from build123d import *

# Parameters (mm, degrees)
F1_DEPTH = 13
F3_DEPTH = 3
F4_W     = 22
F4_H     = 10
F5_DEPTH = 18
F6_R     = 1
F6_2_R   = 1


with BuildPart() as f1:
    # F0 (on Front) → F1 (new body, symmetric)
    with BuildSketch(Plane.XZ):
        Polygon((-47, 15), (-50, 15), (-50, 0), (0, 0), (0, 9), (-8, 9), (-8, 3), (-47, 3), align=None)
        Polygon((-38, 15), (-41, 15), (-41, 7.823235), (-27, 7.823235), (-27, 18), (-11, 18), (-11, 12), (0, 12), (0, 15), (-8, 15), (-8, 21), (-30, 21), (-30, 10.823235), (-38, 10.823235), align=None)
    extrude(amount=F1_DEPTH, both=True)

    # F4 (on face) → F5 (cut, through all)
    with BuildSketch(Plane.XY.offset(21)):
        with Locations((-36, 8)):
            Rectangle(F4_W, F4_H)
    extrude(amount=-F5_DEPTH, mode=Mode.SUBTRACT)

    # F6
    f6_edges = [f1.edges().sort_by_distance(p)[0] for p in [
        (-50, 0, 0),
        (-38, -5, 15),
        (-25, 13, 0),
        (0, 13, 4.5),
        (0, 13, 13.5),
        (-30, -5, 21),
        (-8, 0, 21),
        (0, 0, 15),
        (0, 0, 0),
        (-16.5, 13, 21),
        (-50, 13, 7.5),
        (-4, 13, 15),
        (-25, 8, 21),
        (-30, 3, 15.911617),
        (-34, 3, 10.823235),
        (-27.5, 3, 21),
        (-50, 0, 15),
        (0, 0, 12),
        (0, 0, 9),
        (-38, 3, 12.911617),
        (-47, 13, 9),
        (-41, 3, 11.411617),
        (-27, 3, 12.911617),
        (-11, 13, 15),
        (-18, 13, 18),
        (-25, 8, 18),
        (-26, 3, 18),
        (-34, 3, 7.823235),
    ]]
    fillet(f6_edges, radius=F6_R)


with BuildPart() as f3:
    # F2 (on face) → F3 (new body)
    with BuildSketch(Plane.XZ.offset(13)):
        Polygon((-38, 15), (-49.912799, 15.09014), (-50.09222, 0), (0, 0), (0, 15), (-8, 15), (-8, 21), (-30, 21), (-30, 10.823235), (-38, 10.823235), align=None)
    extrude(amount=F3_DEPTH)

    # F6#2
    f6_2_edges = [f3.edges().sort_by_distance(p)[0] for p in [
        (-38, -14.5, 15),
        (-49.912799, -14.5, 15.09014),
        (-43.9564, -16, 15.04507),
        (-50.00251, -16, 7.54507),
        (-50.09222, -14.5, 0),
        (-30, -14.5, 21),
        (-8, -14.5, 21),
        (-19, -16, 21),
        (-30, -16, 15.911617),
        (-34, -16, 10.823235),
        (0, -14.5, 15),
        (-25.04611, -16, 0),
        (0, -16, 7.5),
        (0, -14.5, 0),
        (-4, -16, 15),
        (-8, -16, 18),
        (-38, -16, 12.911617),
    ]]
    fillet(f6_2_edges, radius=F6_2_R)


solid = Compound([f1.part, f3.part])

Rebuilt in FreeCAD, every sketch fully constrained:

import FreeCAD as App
import Part
import Sketcher
from FreeCAD import Vector


def edges_at(feature, points):
    """Names of the edges that pass closest to the given points."""
    edges = feature.Shape.Edges
    near = lambda p: min(range(len(edges)), key=lambda i: edges[i].distToShape(Part.Vertex(*p))[0])
    return sorted({f"Edge{near(p) + 1}" for p in points})


def add_polygon(sketch, points):
    """Adds a closed chain of lines whose ends are joined by coincident constraints."""
    first, n = sketch.GeometryCount, len(points)
    for a, b in zip(points, points[1:] + points[:1]):
        sketch.addGeometry(Part.LineSegment(App.Vector(*a, 0), App.Vector(*b, 0)), False)
    for i in range(n):
        sketch.addConstraint(Sketcher.Constraint("Coincident", first + i, 2, first + (i + 1) % n, 1))

doc = App.newDocument("Part")
body = doc.addObject("PartDesign::Body", "Body")
body.AllowCompound = True

sketch1 = body.newObject("Sketcher::SketchObject", "Sketch")
sketch1.AttachmentSupport = (doc.getObject("XZ_Plane"), [""])
sketch1.MapMode = "FlatFace"
add_polygon(sketch1, [(-47, 15), (-50, 15), (-50, 0), (0, 0), (0, 9), (-8, 9), (-8, 3), (-47, 3)])
add_polygon(sketch1, [(-38, 15), (-41, 15), (-41, 7.8), (-27, 7.8), (-27, 18), (-11, 18), (-11, 12), (0, 12), (0, 15), (-8, 15), (-8, 21), (-30, 21), (-30, 10.8), (-38, 10.8)])
sketch1.addConstraint([
    Sketcher.Constraint("Horizontal", 0),
    Sketcher.Constraint("Vertical", 1),
    Sketcher.Constraint("Horizontal", 2),
    Sketcher.Constraint("Vertical", 3),
    Sketcher.Constraint("Horizontal", 4),
    Sketcher.Constraint("Vertical", 5),
    Sketcher.Constraint("Horizontal", 6),
    Sketcher.Constraint("Vertical", 7),
    Sketcher.Constraint("Horizontal", 8),
    Sketcher.Constraint("Vertical", 9),
    Sketcher.Constraint("Horizontal", 10),
    Sketcher.Constraint("Vertical", 11),
    Sketcher.Constraint("Horizontal", 12),
    Sketcher.Constraint("Vertical", 13),
    Sketcher.Constraint("Horizontal", 14),
    Sketcher.Constraint("Vertical", 15),
    Sketcher.Constraint("Horizontal", 16),
    Sketcher.Constraint("Vertical", 17),
    Sketcher.Constraint("Horizontal", 18),
    Sketcher.Constraint("Vertical", 19),
    Sketcher.Constraint("Horizontal", 20),
    Sketcher.Constraint("Vertical", 21),
    Sketcher.Constraint("Coincident", 2, 2, -1, 1),
    Sketcher.Constraint("PointOnObject", 14, 2, -2),
    Sketcher.Constraint("Horizontal", 7, 2, 8, 2),
    Sketcher.Constraint("Horizontal", 8, 2, 15, 2),
    Sketcher.Constraint("Vertical", 5, 2, 16, 2),
    Sketcher.Constraint("Equal", 0, 8),
    Sketcher.Constraint("Equal", 16, 20),
    Sketcher.Constraint("Equal", 5, 13),
    Sketcher.Constraint("Equal", 8, 15),
    Sketcher.Constraint("Equal", 13, 17),
    Sketcher.Constraint("Equal", 11, 19),
    Sketcher.Constraint("DistanceX", 0, 2, 0, 1, 3.0),
    Sketcher.Constraint("DistanceX", 2, 1, 2, 2, 50.0),
    Sketcher.Constraint("DistanceX", 4, 2, 4, 1, 8.0),
    Sketcher.Constraint("DistanceX", 10, 1, 10, 2, 14.0),
    Sketcher.Constraint("DistanceX", 12, 1, 12, 2, 16.0),
    Sketcher.Constraint("DistanceX", 14, 1, 14, 2, 11.0),
    Sketcher.Constraint("DistanceY", 1, 2, 1, 1, 15.0),
    Sketcher.Constraint("DistanceY", 3, 1, 3, 2, 9.0),
    Sketcher.Constraint("DistanceY", 5, 2, 5, 1, 6.0),
    Sketcher.Constraint("DistanceY", 9, 2, 9, 1, 7.176765),
])
pad1 = body.newObject("PartDesign::Pad", "Pad")
pad1.Profile = sketch1
pad1.Length = 26
pad1.Midplane = True

sketch2 = body.newObject("Sketcher::SketchObject", "Sketch001")
sketch2.AttachmentSupport = (doc.getObject("XY_Plane"), [""])
sketch2.MapMode = "FlatFace"
sketch2.AttachmentOffset = App.Placement(Vector(0, 0, 21), App.Rotation())
add_polygon(sketch2, [(-47, 13), (-47, 3), (-25, 3), (-25, 13)])
sketch2.addConstraint([
    Sketcher.Constraint("Vertical", 0),
    Sketcher.Constraint("Horizontal", 1),
    Sketcher.Constraint("Vertical", 2),
    Sketcher.Constraint("Horizontal", 3),
    Sketcher.Constraint("DistanceX", 1, 1, 1, 2, 22.0),
    Sketcher.Constraint("DistanceY", 0, 2, 0, 1, 10.0),
    Sketcher.Constraint("DistanceX", 0, 2, -1, 1, 47.0),
    Sketcher.Constraint("DistanceY", -1, 1, 0, 2, 3.0),
])
pocket1 = body.newObject("PartDesign::Pocket", "Pocket")
pocket1.Profile = sketch2
pocket1.Length = 18
doc.recompute()

fillet = body.newObject("PartDesign::Fillet", "Fillet")
fillet.Base = (pocket1, edges_at(pocket1, [
    (-50, 0, 0),
    (-38, -5, 15),
    (-25, 13, 0),
    (0, 13, 4.5),
    (0, 13, 13.5),
    (-30, -5, 21),
    (-8, 0, 21),
    (0, 0, 15),
    (0, 0, 0),
    (-16.5, 13, 21),
    (-50, 13, 7.5),
    (-4, 13, 15),
    (-25, 8, 21),
    (-30, 3, 15.912),
    (-34, 3, 10.823),
    (-27.5, 3, 21),
    (-50, 0, 15),
    (0, 0, 12),
    (0, 0, 9),
    (-38, 3, 12.912),
    (-47, 13, 9),
    (-41, 3, 11.412),
    (-27, 3, 12.912),
    (-11, 13, 15),
    (-18, 13, 18),
    (-25, 8, 18),
    (-26, 3, 18),
    (-34, 3, 7.823),
]))
fillet.Radius = 1
body2 = doc.addObject("PartDesign::Body", "Body001")

sketch3 = body2.newObject("Sketcher::SketchObject", "Sketch002")
sketch3.AttachmentSupport = (doc.getObject("XZ_Plane001"), [""])
sketch3.MapMode = "FlatFace"
sketch3.AttachmentOffset = App.Placement(Vector(0, 0, 13), App.Rotation())
add_polygon(sketch3, [(-38, 15), (-49.9, 15.1), (-50.1, 0), (0, 0), (0, 15), (-8, 15), (-8, 21), (-30, 21), (-30, 10.8), (-38, 10.8)])
sketch3.addConstraint([
    Sketcher.Constraint("Horizontal", 2),
    Sketcher.Constraint("Vertical", 3),
    Sketcher.Constraint("Horizontal", 4),
    Sketcher.Constraint("Vertical", 5),
    Sketcher.Constraint("Horizontal", 6),
    Sketcher.Constraint("Vertical", 7),
    Sketcher.Constraint("Horizontal", 8),
    Sketcher.Constraint("Vertical", 9),
    Sketcher.Constraint("Coincident", 2, 2, -1, 1),
    Sketcher.Constraint("Horizontal", 4, 2, 9, 2),
    Sketcher.Constraint("Equal", 4, 8),
    Sketcher.Constraint("DistanceX", 4, 2, 4, 1, 8.0),
    Sketcher.Constraint("DistanceX", 6, 2, 6, 1, 22.0),
    Sketcher.Constraint("DistanceY", 3, 1, 3, 2, 15.0),
    Sketcher.Constraint("DistanceY", 5, 1, 5, 2, 6.0),
    Sketcher.Constraint("DistanceX", 2, 1, 2, 2, 50.09222),
    Sketcher.Constraint("DistanceX", 0, 2, -1, 1, 49.912799),
    Sketcher.Constraint("Distance", 0, 11.91314),
    Sketcher.Constraint("DistanceY", 7, 2, 7, 1, 10.176765),
])
pad2 = body2.newObject("PartDesign::Pad", "Pad001")
pad2.Profile = sketch3
pad2.Length = 3
doc.recompute()

fillet2 = body2.newObject("PartDesign::Fillet", "Fillet001")
fillet2.Base = (pad2, edges_at(pad2, [
    (-38, -14.5, 15),
    (-49.913, -14.5, 15.09),
    (-43.956, -16, 15.045),
    (-50.003, -16, 7.545),
    (-50.092, -14.5, 0),
    (-30, -14.5, 21),
    (-8, -14.5, 21),
    (-19, -16, 21),
    (-30, -16, 15.912),
    (-34, -16, 10.823),
    (0, -14.5, 15),
    (-25.046, -16, 0),
    (0, -16, 7.5),
    (0, -14.5, 0),
    (-4, -16, 15),
    (-8, -16, 18),
    (-38, -16, 12.912),
]))
fillet2.Radius = 1

doc.recompute()
